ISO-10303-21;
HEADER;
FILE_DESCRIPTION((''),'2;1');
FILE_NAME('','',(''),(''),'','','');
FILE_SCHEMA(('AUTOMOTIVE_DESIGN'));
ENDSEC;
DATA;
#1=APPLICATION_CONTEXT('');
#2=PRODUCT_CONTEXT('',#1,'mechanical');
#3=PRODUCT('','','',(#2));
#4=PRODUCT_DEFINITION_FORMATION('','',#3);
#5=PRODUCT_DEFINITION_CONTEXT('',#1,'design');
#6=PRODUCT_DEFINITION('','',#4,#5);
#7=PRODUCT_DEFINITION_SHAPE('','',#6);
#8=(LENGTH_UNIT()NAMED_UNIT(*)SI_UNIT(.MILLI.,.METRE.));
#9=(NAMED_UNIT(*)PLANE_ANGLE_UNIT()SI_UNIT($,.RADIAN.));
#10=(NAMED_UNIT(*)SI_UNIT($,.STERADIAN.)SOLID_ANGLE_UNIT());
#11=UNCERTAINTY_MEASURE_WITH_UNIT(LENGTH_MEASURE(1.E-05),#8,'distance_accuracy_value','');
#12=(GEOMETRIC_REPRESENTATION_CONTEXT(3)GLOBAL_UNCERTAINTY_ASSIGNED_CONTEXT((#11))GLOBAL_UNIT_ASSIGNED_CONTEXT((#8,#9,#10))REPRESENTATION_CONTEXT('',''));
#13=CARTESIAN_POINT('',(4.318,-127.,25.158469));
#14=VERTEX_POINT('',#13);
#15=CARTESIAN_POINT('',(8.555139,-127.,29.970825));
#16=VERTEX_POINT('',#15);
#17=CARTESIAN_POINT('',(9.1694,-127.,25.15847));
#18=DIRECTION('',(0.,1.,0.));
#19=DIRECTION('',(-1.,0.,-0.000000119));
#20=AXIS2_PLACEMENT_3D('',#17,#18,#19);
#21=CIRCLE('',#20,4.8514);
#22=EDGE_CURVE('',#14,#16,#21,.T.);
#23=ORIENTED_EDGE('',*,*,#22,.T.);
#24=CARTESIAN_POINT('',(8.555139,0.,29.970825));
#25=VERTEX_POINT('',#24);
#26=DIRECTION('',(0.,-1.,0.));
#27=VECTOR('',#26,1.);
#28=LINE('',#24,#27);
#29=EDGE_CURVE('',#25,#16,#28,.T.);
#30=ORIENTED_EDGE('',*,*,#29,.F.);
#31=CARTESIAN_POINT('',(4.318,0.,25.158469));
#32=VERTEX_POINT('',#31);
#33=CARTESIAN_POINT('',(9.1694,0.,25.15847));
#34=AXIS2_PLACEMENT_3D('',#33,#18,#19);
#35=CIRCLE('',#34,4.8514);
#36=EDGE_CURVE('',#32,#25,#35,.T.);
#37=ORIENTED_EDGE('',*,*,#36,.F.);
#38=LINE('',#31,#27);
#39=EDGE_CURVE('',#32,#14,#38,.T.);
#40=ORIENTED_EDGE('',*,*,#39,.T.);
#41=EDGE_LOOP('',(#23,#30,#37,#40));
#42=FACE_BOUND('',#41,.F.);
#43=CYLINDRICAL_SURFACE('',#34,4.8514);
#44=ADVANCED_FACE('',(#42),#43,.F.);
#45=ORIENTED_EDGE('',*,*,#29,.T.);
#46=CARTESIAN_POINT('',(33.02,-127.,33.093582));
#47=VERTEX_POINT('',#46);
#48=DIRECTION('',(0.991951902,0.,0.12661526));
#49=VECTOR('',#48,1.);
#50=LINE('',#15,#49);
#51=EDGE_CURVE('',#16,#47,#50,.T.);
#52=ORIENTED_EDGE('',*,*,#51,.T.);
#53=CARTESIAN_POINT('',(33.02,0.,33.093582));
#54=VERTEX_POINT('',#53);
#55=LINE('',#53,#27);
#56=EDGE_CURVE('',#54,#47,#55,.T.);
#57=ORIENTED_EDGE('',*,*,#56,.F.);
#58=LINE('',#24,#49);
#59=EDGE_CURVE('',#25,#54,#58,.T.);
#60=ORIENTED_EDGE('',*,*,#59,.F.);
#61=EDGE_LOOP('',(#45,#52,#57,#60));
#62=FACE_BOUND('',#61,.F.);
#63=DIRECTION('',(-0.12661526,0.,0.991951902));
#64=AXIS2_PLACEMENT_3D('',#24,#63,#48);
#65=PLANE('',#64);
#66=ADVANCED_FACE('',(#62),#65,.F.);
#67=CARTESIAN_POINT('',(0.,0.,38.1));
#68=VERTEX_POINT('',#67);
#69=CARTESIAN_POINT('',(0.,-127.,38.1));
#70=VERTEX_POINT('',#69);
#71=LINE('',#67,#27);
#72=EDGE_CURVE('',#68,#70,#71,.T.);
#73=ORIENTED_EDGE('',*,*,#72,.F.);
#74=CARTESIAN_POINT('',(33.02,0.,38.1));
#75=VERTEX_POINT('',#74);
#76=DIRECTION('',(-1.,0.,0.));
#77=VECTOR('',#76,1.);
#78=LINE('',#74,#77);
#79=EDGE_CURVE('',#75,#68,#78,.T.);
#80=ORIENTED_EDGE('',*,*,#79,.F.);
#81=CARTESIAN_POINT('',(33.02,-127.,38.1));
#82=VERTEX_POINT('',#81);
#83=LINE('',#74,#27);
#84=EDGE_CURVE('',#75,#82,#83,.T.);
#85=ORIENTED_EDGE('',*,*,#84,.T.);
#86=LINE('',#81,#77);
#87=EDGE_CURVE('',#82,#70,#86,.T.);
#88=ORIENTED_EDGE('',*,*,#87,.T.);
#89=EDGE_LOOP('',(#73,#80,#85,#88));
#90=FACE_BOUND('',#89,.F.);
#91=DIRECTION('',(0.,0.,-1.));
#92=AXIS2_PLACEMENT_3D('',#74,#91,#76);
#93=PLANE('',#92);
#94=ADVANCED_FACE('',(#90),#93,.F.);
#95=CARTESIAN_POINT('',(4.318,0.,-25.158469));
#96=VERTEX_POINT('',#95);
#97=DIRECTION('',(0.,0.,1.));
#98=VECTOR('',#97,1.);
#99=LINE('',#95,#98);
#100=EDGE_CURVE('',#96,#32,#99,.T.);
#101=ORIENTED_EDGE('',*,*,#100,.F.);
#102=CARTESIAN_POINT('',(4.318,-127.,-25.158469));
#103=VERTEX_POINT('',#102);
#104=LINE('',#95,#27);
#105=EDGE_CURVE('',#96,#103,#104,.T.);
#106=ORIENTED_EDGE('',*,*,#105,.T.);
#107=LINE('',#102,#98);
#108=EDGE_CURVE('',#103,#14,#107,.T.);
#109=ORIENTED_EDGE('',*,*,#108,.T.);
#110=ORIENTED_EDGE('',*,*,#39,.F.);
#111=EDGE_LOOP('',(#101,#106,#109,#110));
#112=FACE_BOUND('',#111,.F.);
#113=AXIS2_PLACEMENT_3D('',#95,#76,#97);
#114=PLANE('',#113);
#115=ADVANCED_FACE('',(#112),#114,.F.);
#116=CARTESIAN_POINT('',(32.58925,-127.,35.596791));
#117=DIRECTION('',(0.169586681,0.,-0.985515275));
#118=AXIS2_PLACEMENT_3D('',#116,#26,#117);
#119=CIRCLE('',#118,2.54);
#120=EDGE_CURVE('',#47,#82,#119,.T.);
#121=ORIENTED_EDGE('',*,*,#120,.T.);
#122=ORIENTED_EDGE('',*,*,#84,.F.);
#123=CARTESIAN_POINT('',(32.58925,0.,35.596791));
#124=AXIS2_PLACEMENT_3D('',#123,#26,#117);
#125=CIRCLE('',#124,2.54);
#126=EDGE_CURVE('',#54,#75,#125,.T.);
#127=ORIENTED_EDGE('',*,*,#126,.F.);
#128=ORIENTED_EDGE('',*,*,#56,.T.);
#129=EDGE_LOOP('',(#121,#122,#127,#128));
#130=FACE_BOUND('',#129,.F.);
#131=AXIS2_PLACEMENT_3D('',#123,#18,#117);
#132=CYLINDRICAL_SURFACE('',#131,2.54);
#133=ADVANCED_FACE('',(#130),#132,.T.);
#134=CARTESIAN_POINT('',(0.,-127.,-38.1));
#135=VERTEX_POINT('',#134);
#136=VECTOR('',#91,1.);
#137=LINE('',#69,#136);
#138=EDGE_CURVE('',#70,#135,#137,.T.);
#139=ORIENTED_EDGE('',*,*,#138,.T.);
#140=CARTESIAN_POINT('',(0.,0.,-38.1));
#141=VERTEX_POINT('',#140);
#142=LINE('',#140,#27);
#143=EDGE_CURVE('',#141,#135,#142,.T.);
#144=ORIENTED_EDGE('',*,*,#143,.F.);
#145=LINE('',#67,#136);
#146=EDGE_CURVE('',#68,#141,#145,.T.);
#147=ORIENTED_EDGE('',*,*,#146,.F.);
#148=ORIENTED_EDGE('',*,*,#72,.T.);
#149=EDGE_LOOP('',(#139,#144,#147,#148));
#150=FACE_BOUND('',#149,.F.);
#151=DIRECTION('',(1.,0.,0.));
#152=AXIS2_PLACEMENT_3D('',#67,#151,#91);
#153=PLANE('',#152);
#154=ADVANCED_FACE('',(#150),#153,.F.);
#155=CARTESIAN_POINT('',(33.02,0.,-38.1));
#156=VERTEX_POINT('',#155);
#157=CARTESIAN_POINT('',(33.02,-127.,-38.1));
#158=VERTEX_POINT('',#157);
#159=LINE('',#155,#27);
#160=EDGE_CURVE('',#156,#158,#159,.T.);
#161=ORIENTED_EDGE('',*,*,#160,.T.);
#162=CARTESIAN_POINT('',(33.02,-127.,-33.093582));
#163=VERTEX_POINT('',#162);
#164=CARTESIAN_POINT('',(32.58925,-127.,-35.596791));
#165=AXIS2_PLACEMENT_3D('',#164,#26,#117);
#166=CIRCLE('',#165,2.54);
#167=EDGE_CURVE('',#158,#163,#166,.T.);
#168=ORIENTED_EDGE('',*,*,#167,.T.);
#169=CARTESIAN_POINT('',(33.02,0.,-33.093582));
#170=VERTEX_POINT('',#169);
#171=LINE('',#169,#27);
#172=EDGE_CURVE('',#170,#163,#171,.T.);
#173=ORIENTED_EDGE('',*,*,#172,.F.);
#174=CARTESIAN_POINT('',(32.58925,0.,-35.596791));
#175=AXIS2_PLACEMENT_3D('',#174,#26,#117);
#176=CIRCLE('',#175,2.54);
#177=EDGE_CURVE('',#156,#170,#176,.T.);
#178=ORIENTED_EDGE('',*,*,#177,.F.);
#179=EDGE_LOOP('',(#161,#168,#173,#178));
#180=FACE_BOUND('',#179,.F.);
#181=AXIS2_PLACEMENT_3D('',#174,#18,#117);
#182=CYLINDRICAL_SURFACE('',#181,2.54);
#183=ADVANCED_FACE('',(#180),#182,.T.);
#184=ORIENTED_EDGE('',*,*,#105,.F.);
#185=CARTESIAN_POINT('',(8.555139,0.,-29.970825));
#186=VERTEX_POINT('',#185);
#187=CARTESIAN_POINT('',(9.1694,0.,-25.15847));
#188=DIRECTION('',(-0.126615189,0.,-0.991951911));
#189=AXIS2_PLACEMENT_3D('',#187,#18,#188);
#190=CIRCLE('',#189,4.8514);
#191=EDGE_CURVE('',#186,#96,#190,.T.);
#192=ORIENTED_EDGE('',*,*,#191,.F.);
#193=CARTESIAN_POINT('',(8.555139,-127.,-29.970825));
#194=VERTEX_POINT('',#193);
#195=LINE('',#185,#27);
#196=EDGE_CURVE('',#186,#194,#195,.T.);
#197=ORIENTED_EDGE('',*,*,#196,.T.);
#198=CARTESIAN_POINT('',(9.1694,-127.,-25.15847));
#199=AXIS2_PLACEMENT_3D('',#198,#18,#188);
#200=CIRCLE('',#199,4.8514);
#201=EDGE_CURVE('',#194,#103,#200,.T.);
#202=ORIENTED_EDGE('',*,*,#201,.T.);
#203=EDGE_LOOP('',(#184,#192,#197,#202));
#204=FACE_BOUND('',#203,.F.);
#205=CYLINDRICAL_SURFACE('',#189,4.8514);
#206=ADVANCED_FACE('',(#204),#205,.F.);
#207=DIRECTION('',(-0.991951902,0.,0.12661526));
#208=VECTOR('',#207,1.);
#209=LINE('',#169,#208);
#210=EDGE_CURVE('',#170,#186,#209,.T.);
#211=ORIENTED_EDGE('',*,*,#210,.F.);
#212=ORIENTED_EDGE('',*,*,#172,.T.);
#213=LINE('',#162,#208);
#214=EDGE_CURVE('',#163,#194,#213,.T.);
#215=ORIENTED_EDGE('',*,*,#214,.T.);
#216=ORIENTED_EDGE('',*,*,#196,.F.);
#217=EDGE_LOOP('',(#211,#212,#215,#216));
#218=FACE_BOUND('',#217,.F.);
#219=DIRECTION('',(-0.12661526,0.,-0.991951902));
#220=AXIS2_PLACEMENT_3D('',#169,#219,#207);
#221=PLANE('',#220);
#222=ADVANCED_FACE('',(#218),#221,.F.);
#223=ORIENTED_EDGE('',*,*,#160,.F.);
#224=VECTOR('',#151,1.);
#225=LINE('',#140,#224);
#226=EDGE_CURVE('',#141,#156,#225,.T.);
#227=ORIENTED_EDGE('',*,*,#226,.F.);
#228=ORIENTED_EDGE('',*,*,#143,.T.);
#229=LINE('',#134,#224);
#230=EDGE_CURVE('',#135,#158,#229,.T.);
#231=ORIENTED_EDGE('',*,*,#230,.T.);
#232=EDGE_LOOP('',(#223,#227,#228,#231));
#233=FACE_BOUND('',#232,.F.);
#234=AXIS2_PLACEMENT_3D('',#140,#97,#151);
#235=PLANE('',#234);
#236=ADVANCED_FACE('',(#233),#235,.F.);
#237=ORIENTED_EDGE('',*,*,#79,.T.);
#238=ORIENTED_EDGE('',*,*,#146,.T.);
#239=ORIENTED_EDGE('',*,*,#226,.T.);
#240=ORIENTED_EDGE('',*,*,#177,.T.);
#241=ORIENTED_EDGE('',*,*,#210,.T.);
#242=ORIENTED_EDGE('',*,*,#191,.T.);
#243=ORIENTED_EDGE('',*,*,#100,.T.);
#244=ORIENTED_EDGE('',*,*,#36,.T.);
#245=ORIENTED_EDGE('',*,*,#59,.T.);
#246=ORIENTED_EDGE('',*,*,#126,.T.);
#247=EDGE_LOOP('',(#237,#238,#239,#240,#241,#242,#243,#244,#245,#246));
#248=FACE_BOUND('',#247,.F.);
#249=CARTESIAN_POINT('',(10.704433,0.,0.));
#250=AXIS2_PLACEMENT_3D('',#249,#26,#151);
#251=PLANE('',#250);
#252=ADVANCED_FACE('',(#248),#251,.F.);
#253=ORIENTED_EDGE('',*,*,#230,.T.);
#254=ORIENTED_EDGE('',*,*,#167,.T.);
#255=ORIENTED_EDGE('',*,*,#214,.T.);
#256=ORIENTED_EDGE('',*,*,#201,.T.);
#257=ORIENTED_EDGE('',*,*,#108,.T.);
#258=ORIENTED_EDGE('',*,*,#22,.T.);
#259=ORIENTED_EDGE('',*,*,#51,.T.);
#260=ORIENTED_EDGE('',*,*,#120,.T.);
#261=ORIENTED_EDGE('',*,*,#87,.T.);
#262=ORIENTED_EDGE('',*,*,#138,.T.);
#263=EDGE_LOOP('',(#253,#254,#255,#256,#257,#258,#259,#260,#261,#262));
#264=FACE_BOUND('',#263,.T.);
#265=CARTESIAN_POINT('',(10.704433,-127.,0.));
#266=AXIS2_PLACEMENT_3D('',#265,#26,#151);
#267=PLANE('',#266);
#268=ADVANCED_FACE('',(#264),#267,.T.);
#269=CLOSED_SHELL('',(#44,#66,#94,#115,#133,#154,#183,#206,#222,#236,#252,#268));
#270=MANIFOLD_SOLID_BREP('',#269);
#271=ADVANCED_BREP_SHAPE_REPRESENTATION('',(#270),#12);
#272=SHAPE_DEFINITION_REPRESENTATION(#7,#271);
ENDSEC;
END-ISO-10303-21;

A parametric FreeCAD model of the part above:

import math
import FreeCAD as App
import Part
import Sketcher
from FreeCAD import Vector
Q = App.Units.Quantity

doc = App.newDocument("Part")
body = doc.addObject("PartDesign::Body", "Body")

# Sketch on XZ plane
sketch1 = doc.addObject("Sketcher::SketchObject", "Sketch")
body.addObject(sketch1)
sketch1.AttachmentSupport = (doc.XZ_Plane, [""])
sketch1.MapMode = "FlatFace"
sketch1.addGeometry([
    Part.LineSegment(Vector(0, 38.1, 0), Vector(0, -38.1, 0)),  # 0
    Part.LineSegment(Vector(0, -38.1, 0), Vector(33, -38.1, 0)),  # 1
    Part.ArcOfCircle(Part.Circle(Vector(32.6, -35.6, 0), Vector(0, 0, 1), 2.5), math.radians(-80), math.radians(80)),  # 2
    Part.LineSegment(Vector(33, -33.1, 0), Vector(8.6, -30, 0)),  # 3
    Part.ArcOfCircle(Part.Circle(Vector(9.2, -25.2, 0), Vector(0, 0, 1), 4.9), math.radians(180), math.radians(263)),  # 4
    Part.LineSegment(Vector(4.3, -25.2, 0), Vector(4.3, 25.2, 0)),  # 5
    Part.ArcOfCircle(Part.Circle(Vector(9.2, 25.2, 0), Vector(0, 0, 1), 4.9), math.radians(97), math.radians(180)),  # 6
    Part.LineSegment(Vector(8.6, 30, 0), Vector(33, 33.1, 0)),  # 7
    Part.ArcOfCircle(Part.Circle(Vector(32.6, 35.6, 0), Vector(0, 0, 1), 2.5), math.radians(-80), math.radians(80)),  # 8
    Part.LineSegment(Vector(33, 38.1, 0), Vector(0, 38.1, 0)),  # 9
], False)
sketch1.addConstraint([
    Sketcher.Constraint("Coincident", 0, 2, 1, 1),
    Sketcher.Constraint("Coincident", 1, 2, 2, 1),
    Sketcher.Constraint("Coincident", 2, 2, 3, 1),
    Sketcher.Constraint("Tangent", 3, 2, 4, 2),
    Sketcher.Constraint("Tangent", 4, 1, 5, 1),
    Sketcher.Constraint("Tangent", 5, 2, 6, 2),
    Sketcher.Constraint("Tangent", 6, 1, 7, 1),
    Sketcher.Constraint("Coincident", 7, 2, 8, 1),
    Sketcher.Constraint("Coincident", 8, 2, 9, 1),
    Sketcher.Constraint("Coincident", 9, 2, 0, 1),
    Sketcher.Constraint("Vertical", 0),
    Sketcher.Constraint("Horizontal", 1),
    Sketcher.Constraint("Vertical", 5),
    Sketcher.Constraint("Horizontal", 9),
    Sketcher.Constraint("Equal", 4, 6),
    Sketcher.Constraint("Equal", 2, 8),
    Sketcher.Constraint("Symmetric", 0, 2, 9, 2, -1, 1),
    Sketcher.Constraint("Symmetric", 2, 3, 8, 3, -1),
    Sketcher.Constraint("Symmetric", 3, 2, 6, 1, -1),
    Sketcher.Constraint("Vertical", 1, 2, 2, 2),
    Sketcher.Constraint("Radius", 2, Q("0.1 in")),
    Sketcher.Constraint("DistanceY", 0, 2, 0, 1, Q("3 in")),
    Sketcher.Constraint("DistanceX", 1, 1, 1, 2, Q("1.3 in")),
    Sketcher.Constraint("Radius", 4, Q("0.191 in")),
    Sketcher.Constraint("DistanceX", -1, 1, 4, 1, Q("0.17 in")),
    Sketcher.Constraint("DistanceY", 5, 1, 5, 2, 50.316938),
    Sketcher.Constraint("DistanceX", -1, 1, 2, 3, 32.58925),
])
pad1 = doc.addObject("PartDesign::Pad", "Pad")
body.addObject(pad1)
pad1.Profile = sketch1
pad1.Length = Q("5 in")

doc.recompute()
